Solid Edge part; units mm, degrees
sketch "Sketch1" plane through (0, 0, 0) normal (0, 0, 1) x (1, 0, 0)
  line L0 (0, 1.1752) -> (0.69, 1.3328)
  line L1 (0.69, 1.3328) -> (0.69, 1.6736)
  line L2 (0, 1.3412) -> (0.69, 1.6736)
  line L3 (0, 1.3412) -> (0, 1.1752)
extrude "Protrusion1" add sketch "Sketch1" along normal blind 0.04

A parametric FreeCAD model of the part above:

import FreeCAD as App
import Part
import Sketcher

V = App.Vector
Q = App.Units.Quantity


def add_polygon(sketch, points):
    """Adds a closed chain of lines whose ends are joined by coincident constraints."""
    first, n = sketch.GeometryCount, len(points)
    for a, b in zip(points, points[1:] + points[:1]):
        sketch.addGeometry(Part.LineSegment(App.Vector(*a, 0), App.Vector(*b, 0)), False)
    for i in range(n):
        sketch.addConstraint(Sketcher.Constraint("Coincident", first + i, 2, first + (i + 1) % n, 1))

doc = App.newDocument("Part")
params = doc.addObject("Spreadsheet::Sheet", "Params")
for row, (alias, value) in enumerate([
    ("pad1_length", "0.04 mm"),
], start=1):
    params.set(f"A{row}", alias)
    params.set(f"B{row}", "=" + value)
    params.setAlias(f"B{row}", alias)

body = doc.addObject("PartDesign::Body", "Body")

# Sketch on XY plane
sketch1 = body.newObject("Sketcher::SketchObject", "Sketch")
sketch1.AttachmentSupport = (doc.getObject("XY_Plane"), [""])
sketch1.MapMode = "FlatFace"
add_polygon(sketch1, [(0, 1.3412), (0, 1.1752), (0.69, 1.3328), (0.69, 1.6736)])  # lines 0-3
sketch1.addConstraint(Sketcher.Constraint("Vertical", 0))
sketch1.addConstraint(Sketcher.Constraint("Vertical", 2))
sketch1.addConstraint(Sketcher.Constraint("PointOnObject", 0, 2, -2))
sketch1.addConstraint(Sketcher.Constraint("DistanceY", 0, 2, 0, 1, Q("0.166 mm")))
sketch1.addConstraint(Sketcher.Constraint("DistanceX", -1, 1, 1, 2, Q("0.69 mm")))
sketch1.addConstraint(Sketcher.Constraint("Distance", 3, Q("0.766 mm")))
sketch1.addConstraint(Sketcher.Constraint("DistanceY", 2, 1, 2, 2, Q("0.3408 mm")))
sketch1.addConstraint(Sketcher.Constraint("DistanceY", -1, 1, 0, 2, Q("1.1752 mm")))
pad1 = body.newObject("PartDesign::Pad", "Pad")
pad1.Profile = sketch1
pad1.setExpression("Length", "Params.pad1_length")

doc.recompute()
